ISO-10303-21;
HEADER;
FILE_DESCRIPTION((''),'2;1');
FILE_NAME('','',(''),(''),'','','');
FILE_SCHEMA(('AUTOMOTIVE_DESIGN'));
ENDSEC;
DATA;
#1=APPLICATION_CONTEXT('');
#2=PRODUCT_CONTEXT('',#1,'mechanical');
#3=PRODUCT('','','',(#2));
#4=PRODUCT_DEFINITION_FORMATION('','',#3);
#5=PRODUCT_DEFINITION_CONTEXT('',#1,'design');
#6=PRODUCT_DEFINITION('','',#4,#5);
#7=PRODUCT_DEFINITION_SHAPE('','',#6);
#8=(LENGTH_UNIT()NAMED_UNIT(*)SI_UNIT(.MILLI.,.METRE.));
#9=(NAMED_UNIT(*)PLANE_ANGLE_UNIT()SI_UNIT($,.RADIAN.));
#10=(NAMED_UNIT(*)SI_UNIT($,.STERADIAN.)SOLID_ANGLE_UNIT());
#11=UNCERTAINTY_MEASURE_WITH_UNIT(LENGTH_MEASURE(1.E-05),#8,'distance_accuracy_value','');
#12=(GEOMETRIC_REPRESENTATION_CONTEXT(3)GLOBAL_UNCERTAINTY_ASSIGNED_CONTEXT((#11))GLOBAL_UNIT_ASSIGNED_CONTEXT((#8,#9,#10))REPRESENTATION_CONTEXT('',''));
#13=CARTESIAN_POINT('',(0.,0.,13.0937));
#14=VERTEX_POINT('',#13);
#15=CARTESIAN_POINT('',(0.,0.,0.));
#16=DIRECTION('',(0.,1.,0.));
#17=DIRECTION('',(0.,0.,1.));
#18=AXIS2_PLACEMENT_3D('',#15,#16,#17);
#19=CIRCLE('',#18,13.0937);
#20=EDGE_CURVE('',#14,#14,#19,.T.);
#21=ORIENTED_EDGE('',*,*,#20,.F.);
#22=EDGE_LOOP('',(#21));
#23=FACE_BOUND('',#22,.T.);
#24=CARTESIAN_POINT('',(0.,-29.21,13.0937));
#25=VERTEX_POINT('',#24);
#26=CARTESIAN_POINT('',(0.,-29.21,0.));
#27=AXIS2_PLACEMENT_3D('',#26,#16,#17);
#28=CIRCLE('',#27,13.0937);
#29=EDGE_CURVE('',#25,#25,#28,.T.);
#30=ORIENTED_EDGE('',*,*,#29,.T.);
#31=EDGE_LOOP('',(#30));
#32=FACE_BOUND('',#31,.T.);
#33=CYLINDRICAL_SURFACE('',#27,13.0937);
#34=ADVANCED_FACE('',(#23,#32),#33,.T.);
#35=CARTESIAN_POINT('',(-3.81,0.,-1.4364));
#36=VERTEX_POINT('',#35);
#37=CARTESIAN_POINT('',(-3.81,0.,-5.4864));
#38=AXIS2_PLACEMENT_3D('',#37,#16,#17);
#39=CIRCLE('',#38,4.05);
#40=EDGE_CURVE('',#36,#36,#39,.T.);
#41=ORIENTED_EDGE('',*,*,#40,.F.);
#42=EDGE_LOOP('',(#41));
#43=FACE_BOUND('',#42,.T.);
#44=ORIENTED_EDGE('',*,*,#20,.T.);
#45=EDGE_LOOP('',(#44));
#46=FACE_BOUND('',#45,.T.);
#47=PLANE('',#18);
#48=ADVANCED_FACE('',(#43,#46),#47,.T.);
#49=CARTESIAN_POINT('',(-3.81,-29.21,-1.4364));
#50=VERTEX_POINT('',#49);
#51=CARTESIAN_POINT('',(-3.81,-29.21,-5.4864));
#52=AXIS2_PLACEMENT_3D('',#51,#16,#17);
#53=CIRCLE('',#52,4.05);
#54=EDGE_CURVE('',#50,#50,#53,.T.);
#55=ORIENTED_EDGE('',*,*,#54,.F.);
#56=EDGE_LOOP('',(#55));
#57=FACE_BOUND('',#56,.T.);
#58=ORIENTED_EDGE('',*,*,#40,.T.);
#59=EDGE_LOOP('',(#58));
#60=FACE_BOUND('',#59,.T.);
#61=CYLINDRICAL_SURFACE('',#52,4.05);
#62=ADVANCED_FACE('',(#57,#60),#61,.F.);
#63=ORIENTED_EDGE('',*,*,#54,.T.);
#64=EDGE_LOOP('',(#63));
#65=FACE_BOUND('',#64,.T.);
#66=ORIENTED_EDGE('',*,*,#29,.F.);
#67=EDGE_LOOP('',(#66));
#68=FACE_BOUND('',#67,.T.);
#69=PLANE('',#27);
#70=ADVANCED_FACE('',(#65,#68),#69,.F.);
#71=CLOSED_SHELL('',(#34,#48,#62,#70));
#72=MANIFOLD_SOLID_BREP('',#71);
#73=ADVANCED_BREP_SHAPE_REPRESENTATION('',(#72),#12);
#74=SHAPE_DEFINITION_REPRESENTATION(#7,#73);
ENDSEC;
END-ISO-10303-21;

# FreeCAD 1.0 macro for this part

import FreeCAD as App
import Part
import Sketcher
Q = App.Units.Quantity

doc = App.newDocument("Part")
body = doc.addObject("PartDesign::Body", "Body")

# Sketch on XZ plane
sketch1 = doc.addObject("Sketcher::SketchObject", "Sketch")
body.addObject(sketch1)
sketch1.AttachmentSupport = (doc.XZ_Plane, [""])
sketch1.MapMode = "FlatFace"
sketch1.addGeometry([
    Part.Circle(App.Vector(0, 0, 0), App.Vector(0, 0, 1), 13.1),
    Part.Circle(App.Vector(-3.8, -5.5, 0), App.Vector(0, 0, 1), 4),
], False)
sketch1.addConstraint([
    Sketcher.Constraint("Coincident", 0, 3, -1, 1),
    Sketcher.Constraint("Diameter", 0, Q("1.031 in")),
    Sketcher.Constraint("Diameter", 1, 8.1),
    Sketcher.Constraint("DistanceX", 1, 3, -1, 1, Q("0.15 in")),
    Sketcher.Constraint("DistanceY", 1, 3, -1, 1, Q("0.216 in")),
])
pad1 = doc.addObject("PartDesign::Pad", "Pad")
body.addObject(pad1)
pad1.Profile = sketch1
pad1.Length = Q("1.15 in")

doc.recompute()
